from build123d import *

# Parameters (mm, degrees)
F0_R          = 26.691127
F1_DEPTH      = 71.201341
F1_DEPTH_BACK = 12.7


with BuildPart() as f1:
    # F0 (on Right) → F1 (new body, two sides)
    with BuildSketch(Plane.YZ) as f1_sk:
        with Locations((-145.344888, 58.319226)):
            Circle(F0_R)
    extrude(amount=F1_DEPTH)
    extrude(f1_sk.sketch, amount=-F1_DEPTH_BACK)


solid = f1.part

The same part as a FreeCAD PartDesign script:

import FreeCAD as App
import Part
import Sketcher
Q = App.Units.Quantity

doc = App.newDocument("Part")
params = doc.addObject("Spreadsheet::Sheet", "Params")
for row, (alias, value) in enumerate([
    ("pad1_length", "71.201341 mm"),
    ("pad1_length2", "12.7 mm"),
], start=1):
    params.set(f"A{row}", alias)
    params.set(f"B{row}", "=" + value)
    params.setAlias(f"B{row}", alias)

body = doc.addObject("PartDesign::Body", "Body")

# Sketch on YZ plane
sketch1 = body.newObject("Sketcher::SketchObject", "Sketch")
sketch1.AttachmentSupport = (doc.getObject("YZ_Plane"), [""])
sketch1.MapMode = "FlatFace"
sketch1.addGeometry(Part.Circle(App.Vector(-145.344888, 58.319226, 0), App.Vector(0, 0, 1), 26.691127), False)
sketch1.addConstraint([
    Sketcher.Constraint("Diameter", 0, Q("53.382254 mm")),
    Sketcher.Constraint("DistanceX", 0, 3, -1, 1, Q("145.344888 mm")),
    Sketcher.Constraint("DistanceY", -1, 1, 0, 3, Q("58.319226 mm")),
])
pad1 = body.newObject("PartDesign::Pad", "Pad")
pad1.Profile = sketch1
pad1.Type = "TwoLengths"
pad1.setExpression("Length", "Params.pad1_length")
pad1.setExpression("Length2", "Params.pad1_length2")

doc.recompute()
